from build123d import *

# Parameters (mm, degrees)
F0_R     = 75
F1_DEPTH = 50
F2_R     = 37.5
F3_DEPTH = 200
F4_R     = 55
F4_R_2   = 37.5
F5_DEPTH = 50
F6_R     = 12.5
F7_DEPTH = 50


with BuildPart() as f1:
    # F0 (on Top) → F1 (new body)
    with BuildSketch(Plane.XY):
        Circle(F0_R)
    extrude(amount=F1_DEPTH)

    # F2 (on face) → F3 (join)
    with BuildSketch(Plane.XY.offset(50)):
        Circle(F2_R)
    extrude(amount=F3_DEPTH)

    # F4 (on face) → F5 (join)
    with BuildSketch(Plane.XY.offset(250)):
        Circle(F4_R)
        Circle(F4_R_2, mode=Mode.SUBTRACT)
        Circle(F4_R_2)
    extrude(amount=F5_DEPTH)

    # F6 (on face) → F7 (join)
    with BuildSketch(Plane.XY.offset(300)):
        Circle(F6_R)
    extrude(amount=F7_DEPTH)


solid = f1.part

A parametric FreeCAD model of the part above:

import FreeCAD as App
import Part
import Sketcher

doc = App.newDocument("Part")
body = doc.addObject("PartDesign::Body", "Body")

sketch1 = body.newObject("Sketcher::SketchObject", "Sketch")
sketch1.AttachmentSupport = (doc.getObject("XY_Plane"), [""])
sketch1.MapMode = "FlatFace"
sketch1.addGeometry(Part.Circle(App.Vector(0, 0, 0), App.Vector(0, 0, 1), 75), False)
sketch1.addConstraint(Sketcher.Constraint("Coincident", 0, 3, -1, 1))
sketch1.addConstraint(Sketcher.Constraint("Diameter", 0, 150.0))
pad1 = body.newObject("PartDesign::Pad", "Pad")
pad1.Profile = sketch1
pad1.Length = 50

sketch2 = body.newObject("Sketcher::SketchObject", "Sketch001")
sketch2.AttachmentSupport = (doc.getObject("XY_Plane"), [""])
sketch2.MapMode = "FlatFace"
sketch2.AttachmentOffset = App.Placement(App.Vector(0, 0, 50), App.Rotation())
sketch2.addGeometry(Part.Circle(App.Vector(0, 0, 0), App.Vector(0, 0, 1), 38), False)
sketch2.addConstraint(Sketcher.Constraint("Coincident", 0, 3, -1, 1))
sketch2.addConstraint(Sketcher.Constraint("Diameter", 0, 75.0))
pad2 = body.newObject("PartDesign::Pad", "Pad001")
pad2.Profile = sketch2
pad2.Length = 200

sketch3 = body.newObject("Sketcher::SketchObject", "Sketch002")
sketch3.AttachmentSupport = (doc.getObject("XY_Plane"), [""])
sketch3.MapMode = "FlatFace"
sketch3.AttachmentOffset = App.Placement(App.Vector(0, 0, 250), App.Rotation())
sketch3.addGeometry(Part.Circle(App.Vector(0, 0, 0), App.Vector(0, 0, 1), 55), False)
sketch3.addConstraint(Sketcher.Constraint("Coincident", 0, 3, -1, 1))
sketch3.addConstraint(Sketcher.Constraint("Diameter", 0, 110.0))
pad3 = body.newObject("PartDesign::Pad", "Pad002")
pad3.Profile = sketch3
pad3.Length = 50

sketch4 = body.newObject("Sketcher::SketchObject", "Sketch003")
sketch4.AttachmentSupport = (doc.getObject("XY_Plane"), [""])
sketch4.MapMode = "FlatFace"
sketch4.AttachmentOffset = App.Placement(App.Vector(0, 0, 300), App.Rotation())
sketch4.addGeometry(Part.Circle(App.Vector(0, 0, 0), App.Vector(0, 0, 1), 12), False)
sketch4.addConstraint(Sketcher.Constraint("Coincident", 0, 3, -1, 1))
sketch4.addConstraint(Sketcher.Constraint("Diameter", 0, 25.0))
pad4 = body.newObject("PartDesign::Pad", "Pad003")
pad4.Profile = sketch4
pad4.Length = 50

doc.recompute()
